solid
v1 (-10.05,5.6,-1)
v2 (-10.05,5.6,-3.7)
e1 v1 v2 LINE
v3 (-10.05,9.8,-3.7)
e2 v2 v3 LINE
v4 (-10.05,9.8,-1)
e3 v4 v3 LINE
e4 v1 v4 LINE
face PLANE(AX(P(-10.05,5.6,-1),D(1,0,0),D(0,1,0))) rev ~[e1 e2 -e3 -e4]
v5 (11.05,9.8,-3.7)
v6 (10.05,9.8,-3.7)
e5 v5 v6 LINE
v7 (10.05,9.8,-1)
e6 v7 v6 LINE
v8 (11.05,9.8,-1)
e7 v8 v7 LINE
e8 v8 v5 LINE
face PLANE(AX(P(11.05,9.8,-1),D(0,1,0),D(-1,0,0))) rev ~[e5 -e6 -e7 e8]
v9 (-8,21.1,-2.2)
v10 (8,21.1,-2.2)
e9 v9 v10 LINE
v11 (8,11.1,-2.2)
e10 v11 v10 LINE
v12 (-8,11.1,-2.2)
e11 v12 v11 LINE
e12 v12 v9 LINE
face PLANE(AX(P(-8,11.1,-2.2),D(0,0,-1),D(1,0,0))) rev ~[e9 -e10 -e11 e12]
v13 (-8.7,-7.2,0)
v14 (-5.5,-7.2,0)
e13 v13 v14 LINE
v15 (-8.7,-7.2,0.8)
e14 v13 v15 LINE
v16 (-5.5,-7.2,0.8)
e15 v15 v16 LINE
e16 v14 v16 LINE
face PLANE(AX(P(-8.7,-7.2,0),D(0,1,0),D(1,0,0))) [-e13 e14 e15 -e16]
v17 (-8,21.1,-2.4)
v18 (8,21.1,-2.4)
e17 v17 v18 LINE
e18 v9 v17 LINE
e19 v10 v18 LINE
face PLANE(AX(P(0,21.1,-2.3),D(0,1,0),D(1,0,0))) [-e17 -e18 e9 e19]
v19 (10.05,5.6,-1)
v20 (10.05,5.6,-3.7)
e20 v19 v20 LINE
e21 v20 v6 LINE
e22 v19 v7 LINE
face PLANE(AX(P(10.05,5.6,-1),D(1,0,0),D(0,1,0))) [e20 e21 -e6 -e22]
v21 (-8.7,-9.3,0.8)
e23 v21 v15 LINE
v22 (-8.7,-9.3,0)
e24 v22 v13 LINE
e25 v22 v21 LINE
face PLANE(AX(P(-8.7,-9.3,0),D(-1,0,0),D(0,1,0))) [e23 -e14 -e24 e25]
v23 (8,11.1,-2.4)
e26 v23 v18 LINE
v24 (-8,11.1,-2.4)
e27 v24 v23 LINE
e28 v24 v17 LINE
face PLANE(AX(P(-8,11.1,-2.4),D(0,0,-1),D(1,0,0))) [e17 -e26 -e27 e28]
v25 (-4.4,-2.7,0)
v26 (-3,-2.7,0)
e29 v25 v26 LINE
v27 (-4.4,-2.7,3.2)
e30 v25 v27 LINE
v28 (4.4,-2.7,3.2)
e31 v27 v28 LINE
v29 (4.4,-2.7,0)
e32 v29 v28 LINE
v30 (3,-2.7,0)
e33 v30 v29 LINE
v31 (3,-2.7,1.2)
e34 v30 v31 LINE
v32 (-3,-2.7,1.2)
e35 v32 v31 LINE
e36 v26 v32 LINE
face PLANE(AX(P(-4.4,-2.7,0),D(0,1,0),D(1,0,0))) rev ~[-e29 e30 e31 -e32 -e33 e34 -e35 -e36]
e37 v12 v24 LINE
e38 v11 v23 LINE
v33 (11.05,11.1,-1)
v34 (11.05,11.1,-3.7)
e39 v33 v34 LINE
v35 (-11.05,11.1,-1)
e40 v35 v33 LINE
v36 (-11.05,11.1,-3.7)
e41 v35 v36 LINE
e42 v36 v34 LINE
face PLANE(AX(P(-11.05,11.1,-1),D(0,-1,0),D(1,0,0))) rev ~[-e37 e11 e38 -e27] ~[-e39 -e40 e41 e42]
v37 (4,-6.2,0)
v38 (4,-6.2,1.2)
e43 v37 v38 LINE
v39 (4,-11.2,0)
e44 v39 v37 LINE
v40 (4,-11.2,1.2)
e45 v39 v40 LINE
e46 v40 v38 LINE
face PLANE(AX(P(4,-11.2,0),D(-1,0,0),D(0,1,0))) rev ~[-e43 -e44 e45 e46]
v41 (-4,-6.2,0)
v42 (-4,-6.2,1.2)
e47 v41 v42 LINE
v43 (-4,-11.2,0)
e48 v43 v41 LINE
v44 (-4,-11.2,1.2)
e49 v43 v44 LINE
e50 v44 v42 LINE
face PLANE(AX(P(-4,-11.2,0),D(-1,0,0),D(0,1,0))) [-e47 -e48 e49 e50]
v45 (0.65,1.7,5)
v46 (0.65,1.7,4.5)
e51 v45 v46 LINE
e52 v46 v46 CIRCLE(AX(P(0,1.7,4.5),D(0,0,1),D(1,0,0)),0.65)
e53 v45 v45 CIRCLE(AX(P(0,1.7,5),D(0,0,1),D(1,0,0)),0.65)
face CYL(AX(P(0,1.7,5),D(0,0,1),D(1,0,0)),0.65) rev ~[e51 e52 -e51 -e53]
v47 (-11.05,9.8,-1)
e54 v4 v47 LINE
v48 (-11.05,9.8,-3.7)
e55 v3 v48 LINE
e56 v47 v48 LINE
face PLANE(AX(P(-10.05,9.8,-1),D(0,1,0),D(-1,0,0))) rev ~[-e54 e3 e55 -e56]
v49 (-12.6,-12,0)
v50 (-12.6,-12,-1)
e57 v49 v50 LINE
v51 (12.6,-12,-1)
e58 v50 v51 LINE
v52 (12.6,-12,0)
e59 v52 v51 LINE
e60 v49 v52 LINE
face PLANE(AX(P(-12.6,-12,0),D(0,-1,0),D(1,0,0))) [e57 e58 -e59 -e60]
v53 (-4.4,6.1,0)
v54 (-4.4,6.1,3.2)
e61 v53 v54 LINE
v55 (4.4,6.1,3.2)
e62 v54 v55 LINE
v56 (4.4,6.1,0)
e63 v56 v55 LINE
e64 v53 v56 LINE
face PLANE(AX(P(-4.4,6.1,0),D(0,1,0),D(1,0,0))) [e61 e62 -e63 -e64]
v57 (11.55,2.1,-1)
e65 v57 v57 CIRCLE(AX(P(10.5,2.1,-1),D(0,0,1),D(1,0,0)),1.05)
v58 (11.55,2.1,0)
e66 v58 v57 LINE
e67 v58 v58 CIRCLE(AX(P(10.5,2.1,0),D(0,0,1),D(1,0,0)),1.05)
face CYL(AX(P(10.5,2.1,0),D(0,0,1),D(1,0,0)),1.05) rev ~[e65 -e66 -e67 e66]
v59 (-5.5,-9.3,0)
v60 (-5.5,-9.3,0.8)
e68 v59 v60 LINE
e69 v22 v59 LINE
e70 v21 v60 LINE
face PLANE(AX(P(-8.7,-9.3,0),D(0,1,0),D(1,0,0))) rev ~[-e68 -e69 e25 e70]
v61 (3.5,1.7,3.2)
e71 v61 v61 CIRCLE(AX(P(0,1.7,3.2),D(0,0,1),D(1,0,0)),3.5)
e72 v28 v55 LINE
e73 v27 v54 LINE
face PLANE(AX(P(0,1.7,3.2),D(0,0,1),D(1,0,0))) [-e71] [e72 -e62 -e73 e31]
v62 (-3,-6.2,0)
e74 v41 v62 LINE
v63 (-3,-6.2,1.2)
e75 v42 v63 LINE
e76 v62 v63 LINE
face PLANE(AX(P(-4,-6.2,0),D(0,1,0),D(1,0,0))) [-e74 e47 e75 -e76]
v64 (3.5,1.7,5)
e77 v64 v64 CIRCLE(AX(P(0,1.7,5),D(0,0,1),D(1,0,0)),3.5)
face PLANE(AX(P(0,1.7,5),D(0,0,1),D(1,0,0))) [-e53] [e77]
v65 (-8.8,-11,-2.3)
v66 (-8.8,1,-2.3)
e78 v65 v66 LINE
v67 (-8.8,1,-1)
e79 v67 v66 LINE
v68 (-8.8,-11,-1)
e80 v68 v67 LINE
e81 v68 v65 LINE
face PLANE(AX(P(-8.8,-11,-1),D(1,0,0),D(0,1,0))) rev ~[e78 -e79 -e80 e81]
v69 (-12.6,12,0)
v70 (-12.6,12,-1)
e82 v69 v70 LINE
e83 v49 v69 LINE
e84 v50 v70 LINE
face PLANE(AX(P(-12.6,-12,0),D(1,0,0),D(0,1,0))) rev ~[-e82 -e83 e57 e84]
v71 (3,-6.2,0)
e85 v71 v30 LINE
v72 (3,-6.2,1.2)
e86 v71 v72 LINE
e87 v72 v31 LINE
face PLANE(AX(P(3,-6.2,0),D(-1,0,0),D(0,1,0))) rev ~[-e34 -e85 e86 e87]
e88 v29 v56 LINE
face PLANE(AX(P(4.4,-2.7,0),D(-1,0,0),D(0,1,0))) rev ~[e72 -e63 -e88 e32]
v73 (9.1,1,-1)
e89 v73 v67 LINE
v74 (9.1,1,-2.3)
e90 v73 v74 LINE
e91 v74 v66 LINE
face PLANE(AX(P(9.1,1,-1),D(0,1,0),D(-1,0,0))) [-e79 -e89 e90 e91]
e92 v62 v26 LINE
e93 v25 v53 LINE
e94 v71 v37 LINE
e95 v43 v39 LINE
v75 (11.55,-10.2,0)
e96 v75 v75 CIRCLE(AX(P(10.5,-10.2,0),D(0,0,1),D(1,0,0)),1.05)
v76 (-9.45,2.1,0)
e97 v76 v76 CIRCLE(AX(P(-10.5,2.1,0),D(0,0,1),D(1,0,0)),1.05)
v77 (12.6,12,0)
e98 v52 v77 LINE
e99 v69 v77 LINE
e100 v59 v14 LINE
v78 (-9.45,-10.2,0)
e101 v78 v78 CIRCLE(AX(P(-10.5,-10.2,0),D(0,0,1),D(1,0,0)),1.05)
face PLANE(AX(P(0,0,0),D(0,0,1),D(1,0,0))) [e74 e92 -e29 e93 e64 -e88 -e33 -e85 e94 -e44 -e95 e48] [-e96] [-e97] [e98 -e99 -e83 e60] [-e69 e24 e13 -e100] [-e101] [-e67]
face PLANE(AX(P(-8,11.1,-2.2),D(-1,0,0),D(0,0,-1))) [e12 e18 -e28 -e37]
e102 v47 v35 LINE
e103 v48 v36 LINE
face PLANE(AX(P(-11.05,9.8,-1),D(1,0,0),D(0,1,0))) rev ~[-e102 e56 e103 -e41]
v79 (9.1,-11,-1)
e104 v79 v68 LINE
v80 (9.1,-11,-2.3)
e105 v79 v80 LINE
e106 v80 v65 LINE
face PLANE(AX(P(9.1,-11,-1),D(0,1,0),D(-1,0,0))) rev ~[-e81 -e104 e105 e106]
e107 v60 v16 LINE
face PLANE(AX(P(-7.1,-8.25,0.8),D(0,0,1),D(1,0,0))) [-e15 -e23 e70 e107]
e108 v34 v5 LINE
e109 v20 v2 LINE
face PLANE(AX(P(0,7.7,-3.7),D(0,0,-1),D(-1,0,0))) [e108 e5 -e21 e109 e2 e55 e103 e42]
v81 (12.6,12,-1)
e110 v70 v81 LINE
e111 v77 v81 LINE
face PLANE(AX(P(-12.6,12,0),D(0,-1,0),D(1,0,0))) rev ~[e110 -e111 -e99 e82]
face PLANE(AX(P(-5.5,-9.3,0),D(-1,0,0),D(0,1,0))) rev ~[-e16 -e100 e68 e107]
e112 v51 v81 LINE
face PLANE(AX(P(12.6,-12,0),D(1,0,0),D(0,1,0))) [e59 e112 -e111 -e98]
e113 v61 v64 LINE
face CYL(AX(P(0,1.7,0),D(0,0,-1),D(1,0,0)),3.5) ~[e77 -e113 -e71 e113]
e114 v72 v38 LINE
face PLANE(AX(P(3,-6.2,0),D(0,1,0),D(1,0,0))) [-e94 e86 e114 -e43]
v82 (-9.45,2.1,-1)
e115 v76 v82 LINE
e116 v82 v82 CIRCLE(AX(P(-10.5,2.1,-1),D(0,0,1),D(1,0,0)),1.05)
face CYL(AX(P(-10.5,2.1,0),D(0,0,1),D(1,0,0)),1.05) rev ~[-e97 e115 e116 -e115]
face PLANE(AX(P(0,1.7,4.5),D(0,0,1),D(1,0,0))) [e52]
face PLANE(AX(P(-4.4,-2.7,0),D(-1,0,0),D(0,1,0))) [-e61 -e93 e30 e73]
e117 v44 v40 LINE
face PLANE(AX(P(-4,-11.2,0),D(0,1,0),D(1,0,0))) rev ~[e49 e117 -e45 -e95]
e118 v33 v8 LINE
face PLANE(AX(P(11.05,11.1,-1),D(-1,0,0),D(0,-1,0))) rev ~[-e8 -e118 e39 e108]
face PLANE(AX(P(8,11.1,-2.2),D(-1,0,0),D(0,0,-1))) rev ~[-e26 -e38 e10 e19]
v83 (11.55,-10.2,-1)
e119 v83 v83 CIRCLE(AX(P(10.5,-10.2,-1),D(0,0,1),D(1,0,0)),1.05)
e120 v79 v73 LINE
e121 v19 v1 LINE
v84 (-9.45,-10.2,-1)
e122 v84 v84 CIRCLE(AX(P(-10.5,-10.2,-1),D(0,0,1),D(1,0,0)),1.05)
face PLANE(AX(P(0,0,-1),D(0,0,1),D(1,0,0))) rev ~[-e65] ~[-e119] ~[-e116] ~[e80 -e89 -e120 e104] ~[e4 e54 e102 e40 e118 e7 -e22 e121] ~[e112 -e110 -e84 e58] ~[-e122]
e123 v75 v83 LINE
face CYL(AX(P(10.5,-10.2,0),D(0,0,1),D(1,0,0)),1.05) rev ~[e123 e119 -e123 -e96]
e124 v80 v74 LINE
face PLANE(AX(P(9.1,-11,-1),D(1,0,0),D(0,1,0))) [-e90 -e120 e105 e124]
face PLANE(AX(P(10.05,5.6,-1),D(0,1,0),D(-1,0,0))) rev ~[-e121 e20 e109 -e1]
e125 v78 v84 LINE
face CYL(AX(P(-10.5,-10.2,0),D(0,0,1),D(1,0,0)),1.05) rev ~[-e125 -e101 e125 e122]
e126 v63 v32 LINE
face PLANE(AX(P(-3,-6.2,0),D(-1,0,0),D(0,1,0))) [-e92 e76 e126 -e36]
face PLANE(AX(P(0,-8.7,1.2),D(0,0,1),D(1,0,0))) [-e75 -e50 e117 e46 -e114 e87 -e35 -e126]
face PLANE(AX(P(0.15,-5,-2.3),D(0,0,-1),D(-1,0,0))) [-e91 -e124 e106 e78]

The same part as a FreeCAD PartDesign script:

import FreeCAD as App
import Part
import Sketcher

V = App.Vector
Q = App.Units.Quantity

doc = App.newDocument("Part")
body = doc.addObject("PartDesign::Body", "Body")

# Sketch on XY plane
sketch1 = body.newObject("Sketcher::SketchObject", "Sketch")
sketch1.AttachmentSupport = (doc.getObject("XY_Plane"), [""])
sketch1.MapMode = "FlatFace"
sketch1.addGeometry([
    Part.LineSegment(V(-12.6, 12, 0), V(-12.6, -12, 0)),  # 0
    Part.LineSegment(V(-12.6, -12, 0), V(12.6, -12, 0)),  # 1
    Part.LineSegment(V(12.6, -12, 0), V(12.6, 12, 0)),  # 2
    Part.LineSegment(V(12.6, 12, 0), V(-12.6, 12, 0)),  # 3
    Part.Circle(V(-10.5, -10.2, 0), V(0, 0, 1), 1.1),  # 4
    Part.Circle(V(10.5, -10.2, 0), V(0, 0, 1), 1.1),  # 5
    Part.Circle(V(-10.5, 2.1, 0), V(0, 0, 1), 1.1),  # 6
    Part.Circle(V(10.5, 2.1, 0), V(0, 0, 1), 1.1),  # 7
], False)
sketch1.addConstraint([
    Sketcher.Constraint("Coincident", 0, 2, 1, 1),
    Sketcher.Constraint("Coincident", 1, 2, 2, 1),
    Sketcher.Constraint("Coincident", 2, 2, 3, 1),
    Sketcher.Constraint("Coincident", 3, 2, 0, 1),
    Sketcher.Constraint("Vertical", 0),
    Sketcher.Constraint("Horizontal", 1),
    Sketcher.Constraint("Vertical", 2),
    Sketcher.Constraint("Horizontal", 3),
    Sketcher.Constraint("Equal", 4, 5),
    Sketcher.Constraint("Equal", 5, 6),
    Sketcher.Constraint("Equal", 6, 7),
    Sketcher.Constraint("Symmetric", 0, 2, 2, 2, -1, 1),
    Sketcher.Constraint("Symmetric", 4, 3, 5, 3, -2),
    Sketcher.Constraint("Symmetric", 6, 3, 7, 3, -2),
    Sketcher.Constraint("Vertical", 4, 3, 6, 3),
    Sketcher.Constraint("Diameter", 4, Q("2.1 mm")),
    Sketcher.Constraint("DistanceY", 0, 2, 0, 1, Q("24 mm")),
    Sketcher.Constraint("DistanceX", 1, 1, 1, 2, Q("25.2 mm")),
    Sketcher.Constraint("DistanceX", 4, 3, 5, 3, Q("21 mm")),
    Sketcher.Constraint("DistanceY", 4, 3, -1, 1, Q("10.2 mm")),
    Sketcher.Constraint("DistanceY", -1, 1, 6, 3, Q("2.1 mm")),
])
pad1 = body.newObject("PartDesign::Pad", "Pad")
pad1.Profile = sketch1
pad1.Length = 1
pad1.Reversed = True

# Sketch on XY plane
sketch2 = body.newObject("Sketcher::SketchObject", "Sketch001")
sketch2.AttachmentSupport = (doc.getObject("XY_Plane"), [""])
sketch2.MapMode = "FlatFace"
sketch2.addGeometry([
    Part.LineSegment(V(-4.4, 6.1, 0), V(-4.4, -2.7, 0)),  # 0
    Part.LineSegment(V(-4.4, -2.7, 0), V(4.4, -2.7, 0)),  # 1
    Part.LineSegment(V(4.4, -2.7, 0), V(4.4, 6.1, 0)),  # 2
    Part.LineSegment(V(4.4, 6.1, 0), V(-4.4, 6.1, 0)),  # 3
    Part.Circle(V(0, 1.7, 0), V(0, 0, 1), 3.5),  # 4
], False)
sketch2.addConstraint([
    Sketcher.Constraint("Coincident", 0, 2, 1, 1),
    Sketcher.Constraint("Coincident", 1, 2, 2, 1),
    Sketcher.Constraint("Coincident", 2, 2, 3, 1),
    Sketcher.Constraint("Coincident", 3, 2, 0, 1),
    Sketcher.Constraint("Vertical", 0),
    Sketcher.Constraint("Horizontal", 1),
    Sketcher.Constraint("Vertical", 2),
    Sketcher.Constraint("Horizontal", 3),
    Sketcher.Constraint("PointOnObject", 4, 3, -2),
    Sketcher.Constraint("Equal", 3, 0),
    Sketcher.Constraint("Diameter", 4, Q("7 mm")),
    Sketcher.Constraint("DistanceX", 1, 1, 1, 2, Q("8.8 mm")),
    Sketcher.Constraint("DistanceY", -1, 1, 4, 3, Q("1.7 mm")),
    Sketcher.Constraint("DistanceX", 0, 2, -1, 1, Q("4.4 mm")),
    Sketcher.Constraint("DistanceY", 0, 2, -1, 1, Q("2.7 mm")),
])
pad2 = body.newObject("PartDesign::Pad", "Pad001")
pad2.Profile = sketch2
pad2.Length = 3.2

# Sketch on XY plane
sketch3 = body.newObject("Sketcher::SketchObject", "Sketch002")
sketch3.AttachmentSupport = (doc.getObject("XY_Plane"), [""])
sketch3.MapMode = "FlatFace"
sketch3.addGeometry(Part.Circle(V(0, 1.7, 0), V(0, 0, 1), 3.5), False)
sketch3.addConstraint([
    Sketcher.Constraint("PointOnObject", 0, 3, -2),
    Sketcher.Constraint("Diameter", 0, Q("7 mm")),
    Sketcher.Constraint("DistanceY", -1, 1, 0, 3, Q("1.7 mm")),
])
pad3 = body.newObject("PartDesign::Pad", "Pad002")
pad3.Profile = sketch3
pad3.Length = 5

# Sketch on XY plane
sketch4 = body.newObject("Sketcher::SketchObject", "Sketch003")
sketch4.AttachmentSupport = (doc.getObject("XY_Plane"), [""])
sketch4.MapMode = "FlatFace"
sketch4.addGeometry([
    Part.LineSegment(V(-4, -6.2, 0), V(-4, -11.2, 0)),  # 0
    Part.LineSegment(V(-4, -11.2, 0), V(4, -11.2, 0)),  # 1
    Part.LineSegment(V(4, -11.2, 0), V(4, -6.2, 0)),  # 2
    Part.LineSegment(V(4, -6.2, 0), V(3, -6.2, 0)),  # 3
    Part.LineSegment(V(3, -6.2, 0), V(3, -2.7, 0)),  # 4
    Part.LineSegment(V(3, -2.7, 0), V(-3, -2.7, 0)),  # 5
    Part.LineSegment(V(-3, -2.7, 0), V(-3, -6.2, 0)),  # 6
    Part.LineSegment(V(-3, -6.2, 0), V(-4, -6.2, 0)),  # 7
], False)
sketch4.addConstraint([
    Sketcher.Constraint("Coincident", 0, 2, 1, 1),
    Sketcher.Constraint("Coincident", 1, 2, 2, 1),
    Sketcher.Constraint("Coincident", 2, 2, 3, 1),
    Sketcher.Constraint("Coincident", 3, 2, 4, 1),
    Sketcher.Constraint("Coincident", 4, 2, 5, 1),
    Sketcher.Constraint("Coincident", 5, 2, 6, 1),
    Sketcher.Constraint("Coincident", 6, 2, 7, 1),
    Sketcher.Constraint("Coincident", 7, 2, 0, 1),
    Sketcher.Constraint("Vertical", 0),
    Sketcher.Constraint("Horizontal", 1),
    Sketcher.Constraint("Vertical", 2),
    Sketcher.Constraint("Horizontal", 3),
    Sketcher.Constraint("Vertical", 4),
    Sketcher.Constraint("Horizontal", 5),
    Sketcher.Constraint("Vertical", 6),
    Sketcher.Constraint("Horizontal", 7),
    Sketcher.Constraint("Symmetric", 3, 2, 6, 2, -2),
    Sketcher.Constraint("Equal", 3, 7),
    Sketcher.Constraint("DistanceX", 1, 1, 1, 2, Q("8 mm")),
    Sketcher.Constraint("DistanceX", 3, 2, 3, 1, Q("1 mm")),
    Sketcher.Constraint("DistanceY", 0, 2, 0, 1, Q("5 mm")),
    Sketcher.Constraint("DistanceY", 4, 1, 4, 2, Q("3.5 mm")),
    Sketcher.Constraint("DistanceY", 0, 2, -1, 1, Q("11.2 mm")),
])
pad4 = body.newObject("PartDesign::Pad", "Pad003")
pad4.Profile = sketch4
pad4.Length = 1.2

# Sketch on XY plane
sketch5 = body.newObject("Sketcher::SketchObject", "Sketch004")
sketch5.AttachmentSupport = (doc.getObject("XY_Plane"), [""])
sketch5.MapMode = "FlatFace"
sketch5.AttachmentOffset = App.Placement(V(0, 0, -1), App.Rotation())
sketch5.addGeometry([
    Part.LineSegment(V(10.1, 9.8, 0), V(10.1, 5.6, 0)),  # 0
    Part.LineSegment(V(10.1, 5.6, 0), V(-10.1, 5.6, 0)),  # 1
    Part.LineSegment(V(-10.1, 5.6, 0), V(-10.1, 9.8, 0)),  # 2
    Part.LineSegment(V(-10.1, 9.8, 0), V(-11.1, 9.8, 0)),  # 3
    Part.LineSegment(V(-11.1, 9.8, 0), V(-11.1, 11.1, 0)),  # 4
    Part.LineSegment(V(-11.1, 11.1, 0), V(11.1, 11.1, 0)),  # 5
    Part.LineSegment(V(11.1, 11.1, 0), V(11.1, 9.8, 0)),  # 6
    Part.LineSegment(V(11.1, 9.8, 0), V(10.1, 9.8, 0)),  # 7
], False)
sketch5.addConstraint([
    Sketcher.Constraint("Coincident", 0, 2, 1, 1),
    Sketcher.Constraint("Coincident", 1, 2, 2, 1),
    Sketcher.Constraint("Coincident", 2, 2, 3, 1),
    Sketcher.Constraint("Coincident", 3, 2, 4, 1),
    Sketcher.Constraint("Coincident", 4, 2, 5, 1),
    Sketcher.Constraint("Coincident", 5, 2, 6, 1),
    Sketcher.Constraint("Coincident", 6, 2, 7, 1),
    Sketcher.Constraint("Coincident", 7, 2, 0, 1),
    Sketcher.Constraint("Vertical", 0),
    Sketcher.Constraint("Horizontal", 1),
    Sketcher.Constraint("Vertical", 2),
    Sketcher.Constraint("Horizontal", 3),
    Sketcher.Constraint("Vertical", 4),
    Sketcher.Constraint("Horizontal", 5),
    Sketcher.Constraint("Vertical", 6),
    Sketcher.Constraint("Horizontal", 7),
    Sketcher.Constraint("Symmetric", 3, 2, 6, 2, -2),
    Sketcher.Constraint("Equal", 3, 7),
    Sketcher.Constraint("DistanceX", 3, 2, 3, 1, Q("1 mm")),
    Sketcher.Constraint("DistanceX", 1, 2, 1, 1, Q("20.1 mm")),
    Sketcher.Constraint("DistanceY", 0, 2, 0, 1, Q("4.2 mm")),
    Sketcher.Constraint("DistanceY", 4, 1, 4, 2, Q("1.3 mm")),
    Sketcher.Constraint("DistanceY", -1, 1, 0, 2, Q("5.6 mm")),
])
pad5 = body.newObject("PartDesign::Pad", "Pad004")
pad5.Profile = sketch5
pad5.Length = 2.7
pad5.Reversed = True

# Sketch on XY plane
sketch6 = body.newObject("Sketcher::SketchObject", "Sketch005")
sketch6.AttachmentSupport = (doc.getObject("XY_Plane"), [""])
sketch6.MapMode = "FlatFace"
sketch6.AttachmentOffset = App.Placement(V(0, 0, -1), App.Rotation())
sketch6.addGeometry([
    Part.LineSegment(V(9, 1, 0), V(9, -11, 0)),
    Part.LineSegment(V(9, -11, 0), V(-9, -11, 0)),
    Part.LineSegment(V(-9, -11, 0), V(-9, 1, 0)),
    Part.LineSegment(V(-9, 1, 0), V(9, 1, 0)),
], False)
sketch6.addConstraint([
    Sketcher.Constraint("Coincident", 0, 2, 1, 1),
    Sketcher.Constraint("Coincident", 1, 2, 2, 1),
    Sketcher.Constraint("Coincident", 2, 2, 3, 1),
    Sketcher.Constraint("Coincident", 3, 2, 0, 1),
    Sketcher.Constraint("Vertical", 0),
    Sketcher.Constraint("Horizontal", 1),
    Sketcher.Constraint("Vertical", 2),
    Sketcher.Constraint("Horizontal", 3),
    Sketcher.Constraint("DistanceY", 0, 2, 0, 1, Q("12 mm")),
    Sketcher.Constraint("DistanceX", 1, 2, 1, 1, Q("17.9 mm")),
    Sketcher.Constraint("DistanceY", 0, 2, -1, 1, Q("11 mm")),
    Sketcher.Constraint("DistanceX", -1, 1, 0, 2, Q("9.1 mm")),
])
pad6 = body.newObject("PartDesign::Pad", "Pad005")
pad6.Profile = sketch6
pad6.Length = 1.3
pad6.Reversed = True

# Sketch on XY plane
sketch7 = body.newObject("Sketcher::SketchObject", "Sketch006")
sketch7.AttachmentSupport = (doc.getObject("XY_Plane"), [""])
sketch7.MapMode = "FlatFace"
sketch7.addGeometry([
    Part.LineSegment(V(-8.7, -7.2, 0), V(-8.7, -9.3, 0)),
    Part.LineSegment(V(-8.7, -9.3, 0), V(-5.5, -9.3, 0)),
    Part.LineSegment(V(-5.5, -9.3, 0), V(-5.5, -7.2, 0)),
    Part.LineSegment(V(-5.5, -7.2, 0), V(-8.7, -7.2, 0)),
], False)
sketch7.addConstraint([
    Sketcher.Constraint("Coincident", 0, 2, 1, 1),
    Sketcher.Constraint("Coincident", 1, 2, 2, 1),
    Sketcher.Constraint("Coincident", 2, 2, 3, 1),
    Sketcher.Constraint("Coincident", 3, 2, 0, 1),
    Sketcher.Constraint("Vertical", 0),
    Sketcher.Constraint("Horizontal", 1),
    Sketcher.Constraint("Vertical", 2),
    Sketcher.Constraint("Horizontal", 3),
    Sketcher.Constraint("DistanceX", 1, 1, 1, 2, Q("3.2 mm")),
    Sketcher.Constraint("DistanceY", 0, 2, 0, 1, Q("2.1 mm")),
    Sketcher.Constraint("DistanceX", 0, 2, -1, 1, Q("8.7 mm")),
    Sketcher.Constraint("DistanceY", 0, 2, -1, 1, Q("9.3 mm")),
])
pad7 = body.newObject("PartDesign::Pad", "Pad006")
pad7.Profile = sketch7
pad7.Length = 0.8

# Sketch on XY plane
sketch8 = body.newObject("Sketcher::SketchObject", "Sketch007")
sketch8.AttachmentSupport = (doc.getObject("XY_Plane"), [""])
sketch8.MapMode = "FlatFace"
sketch8.AttachmentOffset = App.Placement(V(0, 0, 5), App.Rotation())
sketch8.addGeometry(Part.Circle(V(0, 1.7, 0), V(0, 0, 1), 0.7), False)
sketch8.addConstraint([
    Sketcher.Constraint("PointOnObject", 0, 3, -2),
    Sketcher.Constraint("Diameter", 0, Q("1.3 mm")),
    Sketcher.Constraint("DistanceY", -1, 1, 0, 3, Q("1.7 mm")),
])
pocket1 = body.newObject("PartDesign::Pocket", "Pocket")
pocket1.Profile = sketch8
pocket1.Length = 0.5

# Sketch on XZ plane
sketch9 = body.newObject("Sketcher::SketchObject", "Sketch008")
sketch9.AttachmentSupport = (doc.getObject("XZ_Plane"), [""])
sketch9.MapMode = "FlatFace"
sketch9.AttachmentOffset = App.Placement(V(0, 0, -11.1), App.Rotation())
sketch9.addGeometry([
    Part.LineSegment(V(-8, -2.4, 0), V(-8, -2.2, 0)),
    Part.LineSegment(V(-8, -2.2, 0), V(8, -2.2, 0)),
    Part.LineSegment(V(8, -2.2, 0), V(8, -2.4, 0)),
    Part.LineSegment(V(8, -2.4, 0), V(-8, -2.4, 0)),
], False)
sketch9.addConstraint([
    Sketcher.Constraint("Coincident", 0, 2, 1, 1),
    Sketcher.Constraint("Coincident", 1, 2, 2, 1),
    Sketcher.Constraint("Coincident", 2, 2, 3, 1),
    Sketcher.Constraint("Coincident", 3, 2, 0, 1),
    Sketcher.Constraint("Vertical", 0),
    Sketcher.Constraint("Horizontal", 1),
    Sketcher.Constraint("Vertical", 2),
    Sketcher.Constraint("Horizontal", 3),
    Sketcher.Constraint("DistanceX", 1, 1, 1, 2, Q("16 mm")),
    Sketcher.Constraint("DistanceY", 0, 1, 0, 2, Q("0.2 mm")),
    Sketcher.Constraint("DistanceX", 0, 2, -1, 1, Q("8 mm")),
    Sketcher.Constraint("DistanceY", 0, 2, -1, 1, Q("2.2 mm")),
])
pad8 = body.newObject("PartDesign::Pad", "Pad007")
pad8.Profile = sketch9
pad8.Length = 10
pad8.Reversed = True

doc.recompute()
